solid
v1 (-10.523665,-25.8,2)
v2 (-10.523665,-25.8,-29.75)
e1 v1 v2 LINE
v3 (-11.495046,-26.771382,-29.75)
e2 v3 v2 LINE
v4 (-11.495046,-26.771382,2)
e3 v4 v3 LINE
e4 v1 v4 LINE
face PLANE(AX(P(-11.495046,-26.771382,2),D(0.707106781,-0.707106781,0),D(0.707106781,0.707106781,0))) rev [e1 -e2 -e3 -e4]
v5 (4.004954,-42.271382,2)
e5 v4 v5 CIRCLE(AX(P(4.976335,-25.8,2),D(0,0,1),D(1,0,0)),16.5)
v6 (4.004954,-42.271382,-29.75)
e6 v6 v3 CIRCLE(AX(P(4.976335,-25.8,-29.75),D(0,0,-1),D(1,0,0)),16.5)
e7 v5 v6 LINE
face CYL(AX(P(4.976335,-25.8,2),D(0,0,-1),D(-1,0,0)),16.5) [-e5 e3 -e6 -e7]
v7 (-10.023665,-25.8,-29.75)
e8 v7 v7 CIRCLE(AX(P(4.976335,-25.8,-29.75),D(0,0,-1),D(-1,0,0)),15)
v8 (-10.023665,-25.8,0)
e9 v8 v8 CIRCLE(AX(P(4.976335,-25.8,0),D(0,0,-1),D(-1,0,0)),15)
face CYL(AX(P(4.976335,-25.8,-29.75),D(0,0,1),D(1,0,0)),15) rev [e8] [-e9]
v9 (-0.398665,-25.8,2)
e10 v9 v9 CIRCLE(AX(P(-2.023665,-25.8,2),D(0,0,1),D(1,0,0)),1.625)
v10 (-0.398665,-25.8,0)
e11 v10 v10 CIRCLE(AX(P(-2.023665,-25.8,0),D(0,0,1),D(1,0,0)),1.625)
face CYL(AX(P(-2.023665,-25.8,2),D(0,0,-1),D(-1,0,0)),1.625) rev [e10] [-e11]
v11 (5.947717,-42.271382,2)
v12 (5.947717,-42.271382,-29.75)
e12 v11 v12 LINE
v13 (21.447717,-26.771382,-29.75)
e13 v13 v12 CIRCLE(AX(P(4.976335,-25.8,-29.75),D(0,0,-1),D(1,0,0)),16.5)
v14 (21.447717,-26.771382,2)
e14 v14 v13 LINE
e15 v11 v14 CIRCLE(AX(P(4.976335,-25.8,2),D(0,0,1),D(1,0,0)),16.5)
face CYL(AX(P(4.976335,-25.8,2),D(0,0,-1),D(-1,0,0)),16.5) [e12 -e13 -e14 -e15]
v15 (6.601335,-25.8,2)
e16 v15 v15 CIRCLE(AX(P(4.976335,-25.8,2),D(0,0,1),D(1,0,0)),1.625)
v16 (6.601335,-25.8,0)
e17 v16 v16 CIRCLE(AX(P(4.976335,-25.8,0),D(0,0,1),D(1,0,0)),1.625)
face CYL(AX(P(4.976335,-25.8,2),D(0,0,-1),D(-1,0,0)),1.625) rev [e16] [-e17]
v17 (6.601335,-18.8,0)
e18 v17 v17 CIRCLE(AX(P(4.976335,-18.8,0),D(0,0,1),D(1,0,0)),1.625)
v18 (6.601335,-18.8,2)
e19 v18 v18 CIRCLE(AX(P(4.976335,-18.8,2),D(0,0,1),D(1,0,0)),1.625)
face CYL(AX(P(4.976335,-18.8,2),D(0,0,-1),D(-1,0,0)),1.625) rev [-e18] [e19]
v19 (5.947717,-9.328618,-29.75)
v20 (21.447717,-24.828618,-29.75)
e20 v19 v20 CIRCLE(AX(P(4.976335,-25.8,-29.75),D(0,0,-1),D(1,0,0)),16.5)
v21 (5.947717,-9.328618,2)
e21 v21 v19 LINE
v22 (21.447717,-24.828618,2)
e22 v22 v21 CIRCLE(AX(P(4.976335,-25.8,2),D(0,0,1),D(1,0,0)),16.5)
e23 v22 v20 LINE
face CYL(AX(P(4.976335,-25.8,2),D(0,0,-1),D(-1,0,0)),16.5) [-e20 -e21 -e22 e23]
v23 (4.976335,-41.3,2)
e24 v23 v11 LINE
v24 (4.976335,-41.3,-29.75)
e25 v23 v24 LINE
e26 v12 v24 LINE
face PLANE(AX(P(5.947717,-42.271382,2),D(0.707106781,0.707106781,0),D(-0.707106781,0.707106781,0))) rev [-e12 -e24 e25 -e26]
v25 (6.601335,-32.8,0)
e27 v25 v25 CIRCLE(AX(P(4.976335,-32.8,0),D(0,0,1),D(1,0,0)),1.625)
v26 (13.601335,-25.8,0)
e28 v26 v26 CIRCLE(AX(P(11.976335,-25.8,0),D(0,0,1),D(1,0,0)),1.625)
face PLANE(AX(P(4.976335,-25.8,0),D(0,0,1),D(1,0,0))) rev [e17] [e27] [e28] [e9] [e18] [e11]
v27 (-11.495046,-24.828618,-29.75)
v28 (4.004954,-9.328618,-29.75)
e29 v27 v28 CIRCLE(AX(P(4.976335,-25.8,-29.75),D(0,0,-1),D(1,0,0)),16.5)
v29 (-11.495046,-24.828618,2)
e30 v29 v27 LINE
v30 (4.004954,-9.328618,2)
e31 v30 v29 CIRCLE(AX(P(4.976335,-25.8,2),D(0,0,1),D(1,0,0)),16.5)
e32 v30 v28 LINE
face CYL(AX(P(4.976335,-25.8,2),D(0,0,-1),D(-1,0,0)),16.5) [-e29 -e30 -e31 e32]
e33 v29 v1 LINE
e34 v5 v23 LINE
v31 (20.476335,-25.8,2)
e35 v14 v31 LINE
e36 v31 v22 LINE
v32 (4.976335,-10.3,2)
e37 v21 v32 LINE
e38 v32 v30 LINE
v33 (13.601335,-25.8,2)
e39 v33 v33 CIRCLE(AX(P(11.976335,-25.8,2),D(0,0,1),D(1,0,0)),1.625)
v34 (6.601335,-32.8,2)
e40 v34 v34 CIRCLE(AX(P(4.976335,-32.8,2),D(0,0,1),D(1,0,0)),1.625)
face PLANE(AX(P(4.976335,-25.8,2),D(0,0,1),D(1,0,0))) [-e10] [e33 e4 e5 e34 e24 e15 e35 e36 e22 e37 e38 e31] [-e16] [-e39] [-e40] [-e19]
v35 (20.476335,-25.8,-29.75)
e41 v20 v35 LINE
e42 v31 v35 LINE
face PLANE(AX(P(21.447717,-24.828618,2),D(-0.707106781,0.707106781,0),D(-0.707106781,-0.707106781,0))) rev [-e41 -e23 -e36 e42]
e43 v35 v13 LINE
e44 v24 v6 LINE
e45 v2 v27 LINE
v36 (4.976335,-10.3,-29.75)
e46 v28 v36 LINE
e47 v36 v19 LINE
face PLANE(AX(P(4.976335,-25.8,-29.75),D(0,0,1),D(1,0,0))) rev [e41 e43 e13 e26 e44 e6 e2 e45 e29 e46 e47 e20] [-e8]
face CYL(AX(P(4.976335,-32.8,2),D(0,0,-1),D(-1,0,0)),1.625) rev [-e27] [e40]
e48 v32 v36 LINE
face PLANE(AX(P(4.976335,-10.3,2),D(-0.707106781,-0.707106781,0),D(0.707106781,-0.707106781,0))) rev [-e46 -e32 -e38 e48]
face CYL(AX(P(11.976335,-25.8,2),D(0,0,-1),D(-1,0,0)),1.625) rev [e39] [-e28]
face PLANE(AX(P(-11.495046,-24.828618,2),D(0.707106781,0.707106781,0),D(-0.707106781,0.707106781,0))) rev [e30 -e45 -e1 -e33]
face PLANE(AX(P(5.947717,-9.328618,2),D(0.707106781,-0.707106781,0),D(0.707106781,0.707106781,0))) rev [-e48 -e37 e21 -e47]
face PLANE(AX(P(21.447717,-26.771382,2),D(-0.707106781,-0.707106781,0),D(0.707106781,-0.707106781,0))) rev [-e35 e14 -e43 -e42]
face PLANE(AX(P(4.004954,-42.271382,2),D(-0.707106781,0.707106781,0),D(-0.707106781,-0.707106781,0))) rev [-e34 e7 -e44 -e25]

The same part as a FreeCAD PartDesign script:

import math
import FreeCAD as App
import Part
import Sketcher

doc = App.newDocument("Part")
body = doc.addObject("PartDesign::Body", "Body")

sketch1 = body.newObject("Sketcher::SketchObject", "Sketch")
sketch1.AttachmentSupport = (doc.getObject("XY_Plane"), [""])
sketch1.MapMode = "FlatFace"
sketch1.addGeometry(Part.LineSegment(App.Vector(21.4, -26.8, 0), App.Vector(20.5, -25.8, 0)), False)
sketch1.addGeometry(Part.LineSegment(App.Vector(20.5, -25.8, 0), App.Vector(21.4, -24.8, 0)), False)
sketch1.addGeometry(Part.ArcOfCircle(Part.Circle(App.Vector(5, -25.8, 0), App.Vector(0, 0, 1), 16.5), math.radians(3), math.radians(87)), False)
sketch1.addGeometry(Part.LineSegment(App.Vector(5.9, -9.3, 0), App.Vector(5, -10.3, 0)), False)
sketch1.addGeometry(Part.LineSegment(App.Vector(5, -10.3, 0), App.Vector(4, -9.3, 0)), False)
sketch1.addGeometry(Part.ArcOfCircle(Part.Circle(App.Vector(5, -25.8, 0), App.Vector(0, 0, 1), 16.5), math.radians(93), math.radians(177)), False)
sketch1.addGeometry(Part.LineSegment(App.Vector(-11.5, -24.8, 0), App.Vector(-10.5, -25.8, 0)), False)
sketch1.addGeometry(Part.LineSegment(App.Vector(-10.5, -25.8, 0), App.Vector(-11.5, -26.8, 0)), False)
sketch1.addGeometry(Part.ArcOfCircle(Part.Circle(App.Vector(5, -25.8, 0), App.Vector(0, 0, 1), 16.5), math.radians(-177), math.radians(-93)), False)
sketch1.addGeometry(Part.LineSegment(App.Vector(4, -42.3, 0), App.Vector(5, -41.3, 0)), False)
sketch1.addGeometry(Part.LineSegment(App.Vector(5, -41.3, 0), App.Vector(5.9, -42.3, 0)), False)
sketch1.addGeometry(Part.ArcOfCircle(Part.Circle(App.Vector(5, -25.8, 0), App.Vector(0, 0, 1), 16.5), math.radians(-87), math.radians(-3)), False)
sketch1.addGeometry(Part.Circle(App.Vector(-2, -25.8, 0), App.Vector(0, 0, 1), 1.6), False)
sketch1.addGeometry(Part.Circle(App.Vector(5, -32.8, 0), App.Vector(0, 0, 1), 1.6), False)
sketch1.addGeometry(Part.Circle(App.Vector(5, -25.8, 0), App.Vector(0, 0, 1), 1.6), False)
sketch1.addGeometry(Part.Circle(App.Vector(12, -25.8, 0), App.Vector(0, 0, 1), 1.6), False)
sketch1.addGeometry(Part.Circle(App.Vector(5, -18.8, 0), App.Vector(0, 0, 1), 1.6), False)
sketch1.addConstraint(Sketcher.Constraint("Coincident", 0, 2, 1, 1))
sketch1.addConstraint(Sketcher.Constraint("Coincident", 1, 2, 2, 1))
sketch1.addConstraint(Sketcher.Constraint("Coincident", 2, 2, 3, 1))
sketch1.addConstraint(Sketcher.Constraint("Coincident", 3, 2, 4, 1))
sketch1.addConstraint(Sketcher.Constraint("Coincident", 4, 2, 5, 1))
sketch1.addConstraint(Sketcher.Constraint("Coincident", 5, 2, 6, 1))
sketch1.addConstraint(Sketcher.Constraint("Coincident", 6, 2, 7, 1))
sketch1.addConstraint(Sketcher.Constraint("Coincident", 7, 2, 8, 1))
sketch1.addConstraint(Sketcher.Constraint("Coincident", 8, 2, 9, 1))
sketch1.addConstraint(Sketcher.Constraint("Coincident", 9, 2, 10, 1))
sketch1.addConstraint(Sketcher.Constraint("Coincident", 10, 2, 11, 1))
sketch1.addConstraint(Sketcher.Constraint("Coincident", 11, 2, 0, 1))
sketch1.addConstraint(Sketcher.Constraint("Coincident", 5, 3, 2, 3))
sketch1.addConstraint(Sketcher.Constraint("Coincident", 8, 3, 2, 3))
sketch1.addConstraint(Sketcher.Constraint("Coincident", 11, 3, 2, 3))
sketch1.addConstraint(Sketcher.Constraint("Coincident", 14, 3, 2, 3))
sketch1.addConstraint(Sketcher.Constraint("Equal", 2, 5))
sketch1.addConstraint(Sketcher.Constraint("Equal", 5, 8))
sketch1.addConstraint(Sketcher.Constraint("Equal", 8, 11))
sketch1.addConstraint(Sketcher.Constraint("Equal", 12, 13))
sketch1.addConstraint(Sketcher.Constraint("Equal", 13, 14))
sketch1.addConstraint(Sketcher.Constraint("Equal", 14, 15))
sketch1.addConstraint(Sketcher.Constraint("Equal", 15, 16))
sketch1.addConstraint(Sketcher.Constraint("Perpendicular", 0, 1))
sketch1.addConstraint(Sketcher.Constraint("Parallel", 1, 3))
sketch1.addConstraint(Sketcher.Constraint("Perpendicular", 3, 4))
sketch1.addConstraint(Sketcher.Constraint("Parallel", 4, 6))
sketch1.addConstraint(Sketcher.Constraint("Perpendicular", 6, 7))
sketch1.addConstraint(Sketcher.Constraint("Parallel", 7, 9))
sketch1.addConstraint(Sketcher.Constraint("Perpendicular", 9, 10))
sketch1.addConstraint(Sketcher.Constraint("Horizontal", 11, 3, 12, 3))
sketch1.addConstraint(Sketcher.Constraint("Horizontal", 14, 3, 15, 3))
sketch1.addConstraint(Sketcher.Constraint("Horizontal", 15, 3, 0, 2))
sketch1.addConstraint(Sketcher.Constraint("Horizontal", 2, 2, 4, 2))
sketch1.addConstraint(Sketcher.Constraint("Horizontal", 1, 2, 5, 2))
sketch1.addConstraint(Sketcher.Constraint("Horizontal", 0, 2, 6, 2))
sketch1.addConstraint(Sketcher.Constraint("Horizontal", 8, 2, 10, 2))
sketch1.addConstraint(Sketcher.Constraint("Horizontal", 7, 2, 11, 2))
sketch1.addConstraint(Sketcher.Constraint("Vertical", 11, 3, 13, 3))
sketch1.addConstraint(Sketcher.Constraint("Vertical", 14, 3, 16, 3))
sketch1.addConstraint(Sketcher.Constraint("Vertical", 4, 2, 8, 2))
sketch1.addConstraint(Sketcher.Constraint("Equal", 1, 3))
sketch1.addConstraint(Sketcher.Constraint("Radius", 2, 16.5))
sketch1.addConstraint(Sketcher.Constraint("Diameter", 12, 3.25))
sketch1.addConstraint(Sketcher.Constraint("DistanceX", 12, 3, 5, 3, 7.0))
sketch1.addConstraint(Sketcher.Constraint("DistanceY", 13, 3, 2, 3, 7.0))
sketch1.addConstraint(Sketcher.Constraint("DistanceX", 2, 3, 15, 3, 7.0))
sketch1.addConstraint(Sketcher.Constraint("DistanceY", 2, 3, 16, 3, 7.0))
sketch1.addConstraint(Sketcher.Constraint("DistanceY", 2, 3, -1, 1, 25.8))
sketch1.addConstraint(Sketcher.Constraint("DistanceY", 3, 2, -1, 1, 10.3))
sketch1.addConstraint(Sketcher.Constraint("DistanceX", -1, 1, 2, 3, 4.976335))
pad1 = body.newObject("PartDesign::Pad", "Pad")
pad1.Profile = sketch1
pad1.Length = 2

sketch2 = body.newObject("Sketcher::SketchObject", "Sketch001")
sketch2.AttachmentSupport = (doc.getObject("XY_Plane"), [""])
sketch2.MapMode = "FlatFace"
sketch2.AttachmentOffset = App.Placement(App.Vector(0, 0, -29.75), App.Rotation())
sketch2.addGeometry(Part.LineSegment(App.Vector(5, -10.3, 0), App.Vector(5.9, -9.3, 0)), False)
sketch2.addGeometry(Part.ArcOfCircle(Part.Circle(App.Vector(5, -25.8, 0), App.Vector(0, 0, 1), 16.5), math.radians(3), math.radians(87)), False)
sketch2.addGeometry(Part.LineSegment(App.Vector(21.4, -24.8, 0), App.Vector(20.5, -25.8, 0)), False)
sketch2.addGeometry(Part.LineSegment(App.Vector(20.5, -25.8, 0), App.Vector(21.4, -26.8, 0)), False)
sketch2.addGeometry(Part.ArcOfCircle(Part.Circle(App.Vector(5, -25.8, 0), App.Vector(0, 0, 1), 16.5), math.radians(-87), math.radians(-3)), False)
sketch2.addGeometry(Part.LineSegment(App.Vector(5.9, -42.3, 0), App.Vector(5, -41.3, 0)), False)
sketch2.addGeometry(Part.LineSegment(App.Vector(5, -41.3, 0), App.Vector(4, -42.3, 0)), False)
sketch2.addGeometry(Part.ArcOfCircle(Part.Circle(App.Vector(5, -25.8, 0), App.Vector(0, 0, 1), 16.5), math.radians(-177), math.radians(-93)), False)
sketch2.addGeometry(Part.LineSegment(App.Vector(-11.5, -26.8, 0), App.Vector(-10.5, -25.8, 0)), False)
sketch2.addGeometry(Part.LineSegment(App.Vector(-10.5, -25.8, 0), App.Vector(-11.5, -24.8, 0)), False)
sketch2.addGeometry(Part.ArcOfCircle(Part.Circle(App.Vector(5, -25.8, 0), App.Vector(0, 0, 1), 16.5), math.radians(93), math.radians(177)), False)
sketch2.addGeometry(Part.LineSegment(App.Vector(4, -9.3, 0), App.Vector(5, -10.3, 0)), False)
sketch2.addGeometry(Part.Circle(App.Vector(5, -25.8, 0), App.Vector(0, 0, 1), 15), False)
sketch2.addConstraint(Sketcher.Constraint("Coincident", 0, 2, 1, 2))
sketch2.addConstraint(Sketcher.Constraint("Coincident", 1, 1, 2, 1))
sketch2.addConstraint(Sketcher.Constraint("Coincident", 2, 2, 3, 1))
sketch2.addConstraint(Sketcher.Constraint("Coincident", 3, 2, 4, 2))
sketch2.addConstraint(Sketcher.Constraint("Coincident", 4, 1, 5, 1))
sketch2.addConstraint(Sketcher.Constraint("Coincident", 5, 2, 6, 1))
sketch2.addConstraint(Sketcher.Constraint("Coincident", 6, 2, 7, 2))
sketch2.addConstraint(Sketcher.Constraint("Coincident", 7, 1, 8, 1))
sketch2.addConstraint(Sketcher.Constraint("Coincident", 8, 2, 9, 1))
sketch2.addConstraint(Sketcher.Constraint("Coincident", 9, 2, 10, 2))
sketch2.addConstraint(Sketcher.Constraint("Coincident", 10, 1, 11, 1))
sketch2.addConstraint(Sketcher.Constraint("Coincident", 11, 2, 0, 1))
sketch2.addConstraint(Sketcher.Constraint("Coincident", 4, 3, 1, 3))
sketch2.addConstraint(Sketcher.Constraint("Coincident", 7, 3, 1, 3))
sketch2.addConstraint(Sketcher.Constraint("Coincident", 10, 3, 1, 3))
sketch2.addConstraint(Sketcher.Constraint("Coincident", 12, 3, 1, 3))
sketch2.addConstraint(Sketcher.Constraint("Equal", 1, 4))
sketch2.addConstraint(Sketcher.Constraint("Equal", 4, 7))
sketch2.addConstraint(Sketcher.Constraint("Equal", 7, 10))
sketch2.addConstraint(Sketcher.Constraint("Parallel", 0, 2))
sketch2.addConstraint(Sketcher.Constraint("Perpendicular", 2, 3))
sketch2.addConstraint(Sketcher.Constraint("Parallel", 3, 5))
sketch2.addConstraint(Sketcher.Constraint("Perpendicular", 5, 6))
sketch2.addConstraint(Sketcher.Constraint("Parallel", 6, 8))
sketch2.addConstraint(Sketcher.Constraint("Perpendicular", 8, 9))
sketch2.addConstraint(Sketcher.Constraint("Parallel", 9, 11))
sketch2.addConstraint(Sketcher.Constraint("Horizontal", 12, 3, 2, 2))
sketch2.addConstraint(Sketcher.Constraint("Horizontal", 4, 1, 6, 2))
sketch2.addConstraint(Sketcher.Constraint("Horizontal", 3, 2, 7, 1))
sketch2.addConstraint(Sketcher.Constraint("Horizontal", 2, 2, 8, 2))
sketch2.addConstraint(Sketcher.Constraint("Horizontal", 1, 1, 9, 2))
sketch2.addConstraint(Sketcher.Constraint("Horizontal", 0, 2, 10, 1))
sketch2.addConstraint(Sketcher.Constraint("Vertical", 0, 2, 4, 1))
sketch2.addConstraint(Sketcher.Constraint("Equal", 0, 2))
sketch2.addConstraint(Sketcher.Constraint("Diameter", 12, 30.0))
sketch2.addConstraint(Sketcher.Constraint("Radius", 1, 16.5))
sketch2.addConstraint(Sketcher.Constraint("DistanceY", 1, 3, -1, 1, 25.8))
sketch2.addConstraint(Sketcher.Constraint("DistanceY", 5, 2, -1, 1, 41.3))
sketch2.addConstraint(Sketcher.Constraint("DistanceX", -1, 1, 1, 3, 4.976335))
pad2 = body.newObject("PartDesign::Pad", "Pad001")
pad2.Profile = sketch2
pad2.Length = 29.75

doc.recompute()
